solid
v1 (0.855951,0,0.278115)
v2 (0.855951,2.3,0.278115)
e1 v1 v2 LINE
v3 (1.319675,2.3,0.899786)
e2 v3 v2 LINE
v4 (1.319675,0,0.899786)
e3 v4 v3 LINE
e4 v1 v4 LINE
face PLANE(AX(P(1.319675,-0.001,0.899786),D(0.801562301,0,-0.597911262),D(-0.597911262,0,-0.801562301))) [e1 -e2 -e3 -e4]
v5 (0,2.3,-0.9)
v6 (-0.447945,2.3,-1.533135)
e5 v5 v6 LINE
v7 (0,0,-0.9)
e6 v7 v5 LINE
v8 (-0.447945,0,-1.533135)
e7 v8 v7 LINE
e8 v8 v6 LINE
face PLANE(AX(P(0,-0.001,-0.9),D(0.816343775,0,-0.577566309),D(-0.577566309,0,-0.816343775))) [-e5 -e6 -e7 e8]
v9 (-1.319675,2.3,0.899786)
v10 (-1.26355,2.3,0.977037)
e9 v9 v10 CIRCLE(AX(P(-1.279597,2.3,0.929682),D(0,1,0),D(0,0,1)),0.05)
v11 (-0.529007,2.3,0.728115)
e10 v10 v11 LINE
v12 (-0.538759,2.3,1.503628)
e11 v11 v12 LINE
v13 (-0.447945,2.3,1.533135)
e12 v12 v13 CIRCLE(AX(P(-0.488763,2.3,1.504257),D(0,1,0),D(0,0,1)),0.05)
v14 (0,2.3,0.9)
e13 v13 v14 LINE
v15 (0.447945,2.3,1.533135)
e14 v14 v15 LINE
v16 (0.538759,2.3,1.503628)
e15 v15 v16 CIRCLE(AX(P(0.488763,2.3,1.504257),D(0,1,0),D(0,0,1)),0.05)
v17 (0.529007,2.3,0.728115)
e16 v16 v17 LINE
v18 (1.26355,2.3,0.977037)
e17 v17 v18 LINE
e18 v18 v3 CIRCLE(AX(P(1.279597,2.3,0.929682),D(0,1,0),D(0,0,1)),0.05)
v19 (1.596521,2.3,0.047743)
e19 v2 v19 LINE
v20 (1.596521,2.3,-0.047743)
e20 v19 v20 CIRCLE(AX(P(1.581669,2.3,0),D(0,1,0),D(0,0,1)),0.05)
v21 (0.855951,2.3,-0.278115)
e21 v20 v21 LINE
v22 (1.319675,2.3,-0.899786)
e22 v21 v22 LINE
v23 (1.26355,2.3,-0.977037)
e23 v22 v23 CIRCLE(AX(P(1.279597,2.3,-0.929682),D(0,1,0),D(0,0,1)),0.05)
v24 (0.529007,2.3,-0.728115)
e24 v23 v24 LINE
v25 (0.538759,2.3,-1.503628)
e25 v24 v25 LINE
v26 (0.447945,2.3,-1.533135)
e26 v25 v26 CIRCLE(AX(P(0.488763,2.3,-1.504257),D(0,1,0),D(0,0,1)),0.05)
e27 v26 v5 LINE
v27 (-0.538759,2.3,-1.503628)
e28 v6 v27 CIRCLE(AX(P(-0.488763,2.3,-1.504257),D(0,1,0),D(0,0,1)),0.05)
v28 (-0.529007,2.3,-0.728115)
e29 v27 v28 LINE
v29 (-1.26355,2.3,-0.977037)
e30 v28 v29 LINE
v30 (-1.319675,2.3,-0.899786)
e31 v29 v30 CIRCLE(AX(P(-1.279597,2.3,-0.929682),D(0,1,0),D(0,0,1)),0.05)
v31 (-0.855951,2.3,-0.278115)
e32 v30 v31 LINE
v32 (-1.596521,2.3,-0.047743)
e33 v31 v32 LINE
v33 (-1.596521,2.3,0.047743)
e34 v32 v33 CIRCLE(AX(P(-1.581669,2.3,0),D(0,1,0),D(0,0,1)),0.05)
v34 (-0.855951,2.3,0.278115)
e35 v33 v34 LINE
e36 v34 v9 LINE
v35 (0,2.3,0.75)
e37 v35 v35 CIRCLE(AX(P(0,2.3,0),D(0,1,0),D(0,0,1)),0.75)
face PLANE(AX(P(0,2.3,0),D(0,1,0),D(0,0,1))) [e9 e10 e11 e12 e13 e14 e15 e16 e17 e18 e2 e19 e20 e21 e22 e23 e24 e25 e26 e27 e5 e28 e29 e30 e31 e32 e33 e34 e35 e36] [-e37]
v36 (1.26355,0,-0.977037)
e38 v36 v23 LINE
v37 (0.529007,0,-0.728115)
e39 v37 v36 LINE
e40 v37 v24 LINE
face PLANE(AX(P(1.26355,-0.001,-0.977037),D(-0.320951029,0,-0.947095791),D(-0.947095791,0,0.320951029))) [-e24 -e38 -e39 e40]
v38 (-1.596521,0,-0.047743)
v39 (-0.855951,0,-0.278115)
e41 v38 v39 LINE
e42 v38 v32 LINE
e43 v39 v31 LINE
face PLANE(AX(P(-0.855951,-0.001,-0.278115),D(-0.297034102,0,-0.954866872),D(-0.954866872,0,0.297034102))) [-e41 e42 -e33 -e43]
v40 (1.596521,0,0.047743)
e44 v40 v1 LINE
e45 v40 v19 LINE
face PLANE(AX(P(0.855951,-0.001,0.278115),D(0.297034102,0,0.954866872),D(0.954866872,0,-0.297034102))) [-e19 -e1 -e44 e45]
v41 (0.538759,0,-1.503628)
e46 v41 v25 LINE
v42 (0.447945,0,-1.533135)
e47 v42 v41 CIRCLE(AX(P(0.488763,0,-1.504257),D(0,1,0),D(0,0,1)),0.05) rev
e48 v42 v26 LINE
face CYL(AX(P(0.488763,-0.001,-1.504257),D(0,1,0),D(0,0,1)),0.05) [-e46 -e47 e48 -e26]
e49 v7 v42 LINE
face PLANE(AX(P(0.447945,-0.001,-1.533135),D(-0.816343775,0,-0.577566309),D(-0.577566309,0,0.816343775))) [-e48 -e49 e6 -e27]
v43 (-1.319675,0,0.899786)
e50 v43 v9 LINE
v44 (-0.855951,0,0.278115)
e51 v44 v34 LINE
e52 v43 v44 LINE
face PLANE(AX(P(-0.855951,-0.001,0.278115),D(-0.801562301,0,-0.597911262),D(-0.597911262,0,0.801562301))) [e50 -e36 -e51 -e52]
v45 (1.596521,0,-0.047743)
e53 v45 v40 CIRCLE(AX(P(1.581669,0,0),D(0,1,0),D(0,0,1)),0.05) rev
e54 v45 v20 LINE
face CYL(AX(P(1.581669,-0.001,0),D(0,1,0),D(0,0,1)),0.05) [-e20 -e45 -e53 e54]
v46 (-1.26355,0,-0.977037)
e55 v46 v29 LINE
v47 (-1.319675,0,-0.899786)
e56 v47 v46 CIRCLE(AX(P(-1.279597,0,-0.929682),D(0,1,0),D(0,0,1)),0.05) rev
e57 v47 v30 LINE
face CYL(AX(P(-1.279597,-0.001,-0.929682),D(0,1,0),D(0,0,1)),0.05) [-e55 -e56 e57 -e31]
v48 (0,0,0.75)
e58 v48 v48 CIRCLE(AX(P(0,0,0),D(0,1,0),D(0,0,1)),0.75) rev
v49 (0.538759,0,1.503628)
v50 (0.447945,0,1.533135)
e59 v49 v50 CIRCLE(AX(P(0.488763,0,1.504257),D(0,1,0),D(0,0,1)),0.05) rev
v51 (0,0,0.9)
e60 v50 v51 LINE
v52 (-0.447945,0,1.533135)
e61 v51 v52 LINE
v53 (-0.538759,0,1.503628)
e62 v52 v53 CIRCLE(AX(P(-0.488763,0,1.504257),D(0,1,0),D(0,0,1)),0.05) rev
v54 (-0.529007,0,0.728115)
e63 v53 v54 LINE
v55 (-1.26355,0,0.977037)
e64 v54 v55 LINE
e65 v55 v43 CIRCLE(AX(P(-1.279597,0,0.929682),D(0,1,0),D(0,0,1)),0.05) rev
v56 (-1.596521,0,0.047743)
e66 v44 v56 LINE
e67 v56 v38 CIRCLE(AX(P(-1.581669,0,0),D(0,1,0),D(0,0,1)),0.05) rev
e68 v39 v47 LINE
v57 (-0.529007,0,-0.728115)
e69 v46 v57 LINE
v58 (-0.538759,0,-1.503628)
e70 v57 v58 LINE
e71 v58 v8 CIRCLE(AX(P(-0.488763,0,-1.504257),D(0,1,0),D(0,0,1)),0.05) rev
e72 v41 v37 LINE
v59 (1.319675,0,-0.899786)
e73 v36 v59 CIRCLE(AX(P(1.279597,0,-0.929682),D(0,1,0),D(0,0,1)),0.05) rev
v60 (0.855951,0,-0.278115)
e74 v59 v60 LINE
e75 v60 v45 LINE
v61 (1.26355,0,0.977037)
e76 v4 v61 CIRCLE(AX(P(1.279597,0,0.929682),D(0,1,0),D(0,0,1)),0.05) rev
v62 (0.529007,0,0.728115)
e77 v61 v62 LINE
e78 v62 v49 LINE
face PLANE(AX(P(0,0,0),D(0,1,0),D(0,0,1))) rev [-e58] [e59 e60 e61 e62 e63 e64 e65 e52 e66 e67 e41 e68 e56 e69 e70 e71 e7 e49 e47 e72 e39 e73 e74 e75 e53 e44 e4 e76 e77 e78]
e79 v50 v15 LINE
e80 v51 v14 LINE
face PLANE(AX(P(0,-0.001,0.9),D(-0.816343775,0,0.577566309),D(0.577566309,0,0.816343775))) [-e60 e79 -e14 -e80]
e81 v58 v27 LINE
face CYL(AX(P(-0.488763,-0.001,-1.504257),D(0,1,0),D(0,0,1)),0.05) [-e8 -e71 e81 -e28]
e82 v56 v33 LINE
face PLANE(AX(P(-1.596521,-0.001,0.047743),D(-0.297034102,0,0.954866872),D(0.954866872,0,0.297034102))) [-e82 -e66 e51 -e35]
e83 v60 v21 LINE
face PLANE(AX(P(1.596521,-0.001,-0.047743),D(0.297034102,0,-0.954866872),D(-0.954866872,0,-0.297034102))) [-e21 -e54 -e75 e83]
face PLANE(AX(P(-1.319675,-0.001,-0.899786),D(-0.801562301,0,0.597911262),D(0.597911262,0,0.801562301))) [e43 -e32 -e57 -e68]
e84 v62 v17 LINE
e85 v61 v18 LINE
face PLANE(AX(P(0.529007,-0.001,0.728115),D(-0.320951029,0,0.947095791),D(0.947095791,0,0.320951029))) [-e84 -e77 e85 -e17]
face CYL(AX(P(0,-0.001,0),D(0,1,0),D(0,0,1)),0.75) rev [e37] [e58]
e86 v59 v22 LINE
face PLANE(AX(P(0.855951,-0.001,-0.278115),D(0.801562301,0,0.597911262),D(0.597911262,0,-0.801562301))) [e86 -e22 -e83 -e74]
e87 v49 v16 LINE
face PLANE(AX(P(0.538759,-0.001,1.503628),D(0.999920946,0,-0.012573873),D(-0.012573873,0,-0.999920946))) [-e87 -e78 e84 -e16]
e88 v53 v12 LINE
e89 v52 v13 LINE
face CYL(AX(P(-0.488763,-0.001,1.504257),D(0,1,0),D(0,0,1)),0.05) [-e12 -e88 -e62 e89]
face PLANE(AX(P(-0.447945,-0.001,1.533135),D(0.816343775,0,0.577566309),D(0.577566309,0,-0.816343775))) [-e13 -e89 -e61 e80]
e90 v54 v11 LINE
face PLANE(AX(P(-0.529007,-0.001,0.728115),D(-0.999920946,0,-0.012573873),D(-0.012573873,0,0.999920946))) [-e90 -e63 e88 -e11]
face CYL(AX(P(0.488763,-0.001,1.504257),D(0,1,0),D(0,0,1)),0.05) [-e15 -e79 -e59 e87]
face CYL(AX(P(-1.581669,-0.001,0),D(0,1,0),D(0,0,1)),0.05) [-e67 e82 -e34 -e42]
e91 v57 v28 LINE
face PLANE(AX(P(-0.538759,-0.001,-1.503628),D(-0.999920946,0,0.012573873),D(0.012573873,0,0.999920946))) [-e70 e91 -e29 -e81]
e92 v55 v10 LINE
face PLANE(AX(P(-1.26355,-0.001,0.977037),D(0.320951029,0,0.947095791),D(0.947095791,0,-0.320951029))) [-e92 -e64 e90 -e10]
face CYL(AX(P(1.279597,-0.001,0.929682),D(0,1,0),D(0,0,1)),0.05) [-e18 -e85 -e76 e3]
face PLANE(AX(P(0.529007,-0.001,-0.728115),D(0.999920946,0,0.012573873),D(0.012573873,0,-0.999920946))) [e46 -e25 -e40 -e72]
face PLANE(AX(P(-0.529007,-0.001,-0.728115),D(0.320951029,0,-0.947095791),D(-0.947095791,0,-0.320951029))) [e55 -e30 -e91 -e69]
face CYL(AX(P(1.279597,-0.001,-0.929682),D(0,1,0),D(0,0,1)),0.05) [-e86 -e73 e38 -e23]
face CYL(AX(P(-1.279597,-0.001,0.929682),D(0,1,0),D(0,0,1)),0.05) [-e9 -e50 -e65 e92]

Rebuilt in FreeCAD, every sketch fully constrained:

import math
import FreeCAD as App
import Part
import Sketcher
Q = App.Units.Quantity

doc = App.newDocument("Part")
body = doc.addObject("PartDesign::Body", "Body")

sketch1 = doc.addObject("Sketcher::SketchObject", "Sketch")
body.addObject(sketch1)
sketch1.AttachmentSupport = (doc.XZ_Plane, [""])
sketch1.MapMode = "FlatFace"
sketch1.addGeometry(Part.Circle(App.Vector(0, 0, 0), App.Vector(0, 0, 1), 1.8), False)
sketch1.addConstraint(Sketcher.Constraint("Coincident", 0, 3, -1, 1))
sketch1.addConstraint(Sketcher.Constraint("Diameter", 0, Q("3.5 mm")))
pad1 = doc.addObject("PartDesign::Pad", "Pad")
body.addObject(pad1)
pad1.Profile = sketch1
pad1.Length = 2.3
pad1.Reversed = True

sketch2 = doc.addObject("Sketcher::SketchObject", "Sketch001")
body.addObject(sketch2)
sketch2.AttachmentSupport = (doc.XZ_Plane, [""])
sketch2.MapMode = "FlatFace"
sketch2.AttachmentOffset = App.Placement(App.Vector(0, 0, -2.3), App.Rotation())
sketch2.addGeometry(Part.LineSegment(App.Vector(-3.296, -3.296, 0), App.Vector(-3.296, 3.296, 0)), False)
sketch2.addGeometry(Part.LineSegment(App.Vector(-3.296, 3.296, 0), App.Vector(3.296, 3.296, 0)), False)
sketch2.addGeometry(Part.LineSegment(App.Vector(3.296, 3.296, 0), App.Vector(3.296, -3.296, 0)), False)
sketch2.addGeometry(Part.LineSegment(App.Vector(3.296, -3.296, 0), App.Vector(-3.296, -3.296, 0)), False)
sketch2.addGeometry(Part.LineSegment(App.Vector(0.539, -1.504, 0), App.Vector(0.529, -0.728, 0)), False)
sketch2.addGeometry(Part.LineSegment(App.Vector(0.529, -0.728, 0), App.Vector(1.264, -0.977, 0)), False)
sketch2.addGeometry(Part.ArcOfCircle(Part.Circle(App.Vector(1.28, -0.93, 0), App.Vector(0, 0, 1), 0.05), math.radians(-109), math.radians(37)), False)
sketch2.addGeometry(Part.LineSegment(App.Vector(1.32, -0.9, 0), App.Vector(0.856, -0.278, 0)), False)
sketch2.addGeometry(Part.LineSegment(App.Vector(0.856, -0.278, 0), App.Vector(1.597, -0.048, 0)), False)
sketch2.addGeometry(Part.ArcOfCircle(Part.Circle(App.Vector(1.582, 0, 0), App.Vector(0, 0, 1), 0.05), math.radians(-73), math.radians(73)), False)
sketch2.addGeometry(Part.LineSegment(App.Vector(1.597, 0.048, 0), App.Vector(0.856, 0.278, 0)), False)
sketch2.addGeometry(Part.LineSegment(App.Vector(0.856, 0.278, 0), App.Vector(1.32, 0.9, 0)), False)
sketch2.addGeometry(Part.ArcOfCircle(Part.Circle(App.Vector(1.28, 0.93, 0), App.Vector(0, 0, 1), 0.05), math.radians(-37), math.radians(109)), False)
sketch2.addGeometry(Part.LineSegment(App.Vector(1.264, 0.977, 0), App.Vector(0.529, 0.728, 0)), False)
sketch2.addGeometry(Part.LineSegment(App.Vector(0.529, 0.728, 0), App.Vector(0.539, 1.504, 0)), False)
sketch2.addGeometry(Part.ArcOfCircle(Part.Circle(App.Vector(0.489, 1.504, 0), App.Vector(0, 0, 1), 0.05), math.radians(-1), math.radians(145)), False)
sketch2.addGeometry(Part.LineSegment(App.Vector(0.448, 1.533, 0), App.Vector(0, 0.9, 0)), False)
sketch2.addGeometry(Part.LineSegment(App.Vector(0, 0.9, 0), App.Vector(-0.448, 1.533, 0)), False)
sketch2.addGeometry(Part.ArcOfCircle(Part.Circle(App.Vector(-0.489, 1.504, 0), App.Vector(0, 0, 1), 0.05), math.radians(35), math.radians(181)), False)
sketch2.addGeometry(Part.LineSegment(App.Vector(-0.539, 1.504, 0), App.Vector(-0.529, 0.728, 0)), False)
sketch2.addGeometry(Part.LineSegment(App.Vector(-0.529, 0.728, 0), App.Vector(-1.264, 0.977, 0)), False)
sketch2.addGeometry(Part.ArcOfCircle(Part.Circle(App.Vector(-1.28, 0.93, 0), App.Vector(0, 0, 1), 0.05), math.radians(71), math.radians(217)), False)
sketch2.addGeometry(Part.LineSegment(App.Vector(-1.32, 0.9, 0), App.Vector(-0.856, 0.278, 0)), False)
sketch2.addGeometry(Part.LineSegment(App.Vector(-0.856, 0.278, 0), App.Vector(-1.597, 0.048, 0)), False)
sketch2.addGeometry(Part.ArcOfCircle(Part.Circle(App.Vector(-1.582, 0, 0), App.Vector(0, 0, 1), 0.05), math.radians(107), math.radians(253)), False)
sketch2.addGeometry(Part.LineSegment(App.Vector(-1.597, -0.048, 0), App.Vector(-0.856, -0.278, 0)), False)
sketch2.addGeometry(Part.LineSegment(App.Vector(-0.856, -0.278, 0), App.Vector(-1.32, -0.9, 0)), False)
sketch2.addGeometry(Part.ArcOfCircle(Part.Circle(App.Vector(-1.28, -0.93, 0), App.Vector(0, 0, 1), 0.05), math.radians(143), math.radians(289)), False)
sketch2.addGeometry(Part.LineSegment(App.Vector(-1.264, -0.977, 0), App.Vector(-0.529, -0.728, 0)), False)
sketch2.addGeometry(Part.LineSegment(App.Vector(-0.529, -0.728, 0), App.Vector(-0.539, -1.504, 0)), False)
sketch2.addGeometry(Part.ArcOfCircle(Part.Circle(App.Vector(-0.489, -1.504, 0), App.Vector(0, 0, 1), 0.05), math.radians(179), math.radians(325)), False)
sketch2.addGeometry(Part.LineSegment(App.Vector(-0.448, -1.533, 0), App.Vector(0, -0.9, 0)), False)
sketch2.addGeometry(Part.LineSegment(App.Vector(0, -0.9, 0), App.Vector(0.448, -1.533, 0)), False)
sketch2.addGeometry(Part.ArcOfCircle(Part.Circle(App.Vector(0.489, -1.504, 0), App.Vector(0, 0, 1), 0.05), math.radians(-145), math.radians(1)), False)
sketch2.addGeometry(Part.Circle(App.Vector(0, 0, 0), App.Vector(0, 0, 1), 0.75), False)
sketch2.addConstraint(Sketcher.Constraint("Coincident", 0, 2, 1, 1))
sketch2.addConstraint(Sketcher.Constraint("Coincident", 1, 2, 2, 1))
sketch2.addConstraint(Sketcher.Constraint("Coincident", 2, 2, 3, 1))
sketch2.addConstraint(Sketcher.Constraint("Coincident", 3, 2, 0, 1))
sketch2.addConstraint(Sketcher.Constraint("Coincident", 4, 2, 5, 1))
sketch2.addConstraint(Sketcher.Constraint("Tangent", 5, 2, 6, 1))
sketch2.addConstraint(Sketcher.Constraint("Tangent", 6, 2, 7, 1))
sketch2.addConstraint(Sketcher.Constraint("Coincident", 7, 2, 8, 1))
sketch2.addConstraint(Sketcher.Constraint("Tangent", 8, 2, 9, 1))
sketch2.addConstraint(Sketcher.Constraint("Tangent", 9, 2, 10, 1))
sketch2.addConstraint(Sketcher.Constraint("Coincident", 10, 2, 11, 1))
sketch2.addConstraint(Sketcher.Constraint("Tangent", 11, 2, 12, 1))
sketch2.addConstraint(Sketcher.Constraint("Tangent", 12, 2, 13, 1))
sketch2.addConstraint(Sketcher.Constraint("Coincident", 13, 2, 14, 1))
sketch2.addConstraint(Sketcher.Constraint("Tangent", 14, 2, 15, 1))
sketch2.addConstraint(Sketcher.Constraint("Tangent", 15, 2, 16, 1))
sketch2.addConstraint(Sketcher.Constraint("Coincident", 16, 2, 17, 1))
sketch2.addConstraint(Sketcher.Constraint("Tangent", 17, 2, 18, 1))
sketch2.addConstraint(Sketcher.Constraint("Tangent", 18, 2, 19, 1))
sketch2.addConstraint(Sketcher.Constraint("Coincident", 19, 2, 20, 1))
sketch2.addConstraint(Sketcher.Constraint("Tangent", 20, 2, 21, 1))
sketch2.addConstraint(Sketcher.Constraint("Tangent", 21, 2, 22, 1))
sketch2.addConstraint(Sketcher.Constraint("Coincident", 22, 2, 23, 1))
sketch2.addConstraint(Sketcher.Constraint("Tangent", 23, 2, 24, 1))
sketch2.addConstraint(Sketcher.Constraint("Tangent", 24, 2, 25, 1))
sketch2.addConstraint(Sketcher.Constraint("Coincident", 25, 2, 26, 1))
sketch2.addConstraint(Sketcher.Constraint("Tangent", 26, 2, 27, 1))
sketch2.addConstraint(Sketcher.Constraint("Tangent", 27, 2, 28, 1))
sketch2.addConstraint(Sketcher.Constraint("Coincident", 28, 2, 29, 1))
sketch2.addConstraint(Sketcher.Constraint("Tangent", 29, 2, 30, 1))
sketch2.addConstraint(Sketcher.Constraint("Tangent", 30, 2, 31, 1))
sketch2.addConstraint(Sketcher.Constraint("Coincident", 31, 2, 32, 1))
sketch2.addConstraint(Sketcher.Constraint("Tangent", 32, 2, 33, 1))
sketch2.addConstraint(Sketcher.Constraint("Tangent", 33, 2, 4, 1))
sketch2.addConstraint(Sketcher.Constraint("Vertical", 0))
sketch2.addConstraint(Sketcher.Constraint("Horizontal", 1))
sketch2.addConstraint(Sketcher.Constraint("Vertical", 2))
sketch2.addConstraint(Sketcher.Constraint("Horizontal", 3))
sketch2.addConstraint(Sketcher.Constraint("Coincident", 34, 3, -1, 1))
sketch2.addConstraint(Sketcher.Constraint("Equal", 6, 9))
sketch2.addConstraint(Sketcher.Constraint("Equal", 9, 12))
sketch2.addConstraint(Sketcher.Constraint("Equal", 12, 15))
sketch2.addConstraint(Sketcher.Constraint("Equal", 15, 18))
sketch2.addConstraint(Sketcher.Constraint("Equal", 18, 21))
sketch2.addConstraint(Sketcher.Constraint("Equal", 21, 24))
sketch2.addConstraint(Sketcher.Constraint("Equal", 24, 27))
sketch2.addConstraint(Sketcher.Constraint("Equal", 27, 30))
sketch2.addConstraint(Sketcher.Constraint("Equal", 30, 33))
sketch2.addConstraint(Sketcher.Constraint("Symmetric", 6, 3, 21, 3, -1, 1))
sketch2.addConstraint(Sketcher.Constraint("Symmetric", 9, 3, 24, 3, -1, 1))
sketch2.addConstraint(Sketcher.Constraint("Symmetric", 12, 3, 27, 3, -1, 1))
sketch2.addConstraint(Sketcher.Constraint("Symmetric", 15, 3, 30, 3, -1, 1))
sketch2.addConstraint(Sketcher.Constraint("Symmetric", 18, 3, 33, 3, -1, 1))
sketch2.addConstraint(Sketcher.Constraint("Symmetric", 0, 2, 2, 2, -1, 1))
sketch2.addConstraint(Sketcher.Constraint("Symmetric", 4, 2, 19, 2, -1, 1))
sketch2.addConstraint(Sketcher.Constraint("Symmetric", 7, 2, 22, 2, -1, 1))
sketch2.addConstraint(Sketcher.Constraint("Symmetric", 10, 2, 25, 2, -1, 1))
sketch2.addConstraint(Sketcher.Constraint("Symmetric", 13, 2, 28, 2, -1, 1))
sketch2.addConstraint(Sketcher.Constraint("Symmetric", 16, 2, 31, 2, -1, 1))
sketch2.addConstraint(Sketcher.Constraint("Symmetric", 15, 3, 18, 3, -2))
sketch2.addConstraint(Sketcher.Constraint("Symmetric", 12, 3, 21, 3, -2))
sketch2.addConstraint(Sketcher.Constraint("Symmetric", 13, 2, 19, 2, -2))
sketch2.addConstraint(Sketcher.Constraint("Symmetric", 10, 2, 22, 2, -2))
sketch2.addConstraint(Sketcher.Constraint("PointOnObject", 9, 3, -1))
sketch2.addConstraint(Sketcher.Constraint("PointOnObject", 16, 2, -2))
sketch2.addConstraint(Sketcher.Constraint("Equal", 3, 0))
sketch2.addConstraint(Sketcher.Constraint("Equal", 4, 5))
sketch2.addConstraint(Sketcher.Constraint("Equal", 5, 7))
sketch2.addConstraint(Sketcher.Constraint("Equal", 7, 8))
sketch2.addConstraint(Sketcher.Constraint("Equal", 14, 16))
sketch2.addConstraint(Sketcher.Constraint("Diameter", 34, Q("1.5 mm")))
sketch2.addConstraint(Sketcher.Constraint("Radius", 6, Q("0.05 mm")))
sketch2.addConstraint(Sketcher.Constraint("DistanceY", -1, 1, 16, 2, Q("0.9 mm")))
sketch2.addConstraint(Sketcher.Constraint("DistanceX", 1, 1, 1, 2, Q("6.592 mm")))
sketch2.addConstraint(Sketcher.Constraint("DistanceY", 4, 2, 7, 2, Q("0.45 mm")))
sketch2.addConstraint(Sketcher.Constraint("DistanceX", 7, 2, 5, 2, Q("0.407599 mm")))
sketch2.addConstraint(Sketcher.Constraint("DistanceY", 12, 2, 15, 2, Q("0.556098 mm")))
sketch2.addConstraint(Sketcher.Constraint("DistanceY", 6, 3, -1, 1, Q("0.929682 mm")))
sketch2.addConstraint(Sketcher.Constraint("DistanceX", -1, 1, 9, 3, Q("1.581669 mm")))
pocket1 = doc.addObject("PartDesign::Pocket", "Pocket")
body.addObject(pocket1)
pocket1.Profile = sketch2
pocket1.Length = 2.3
pocket1.Reversed = True

doc.recompute()
